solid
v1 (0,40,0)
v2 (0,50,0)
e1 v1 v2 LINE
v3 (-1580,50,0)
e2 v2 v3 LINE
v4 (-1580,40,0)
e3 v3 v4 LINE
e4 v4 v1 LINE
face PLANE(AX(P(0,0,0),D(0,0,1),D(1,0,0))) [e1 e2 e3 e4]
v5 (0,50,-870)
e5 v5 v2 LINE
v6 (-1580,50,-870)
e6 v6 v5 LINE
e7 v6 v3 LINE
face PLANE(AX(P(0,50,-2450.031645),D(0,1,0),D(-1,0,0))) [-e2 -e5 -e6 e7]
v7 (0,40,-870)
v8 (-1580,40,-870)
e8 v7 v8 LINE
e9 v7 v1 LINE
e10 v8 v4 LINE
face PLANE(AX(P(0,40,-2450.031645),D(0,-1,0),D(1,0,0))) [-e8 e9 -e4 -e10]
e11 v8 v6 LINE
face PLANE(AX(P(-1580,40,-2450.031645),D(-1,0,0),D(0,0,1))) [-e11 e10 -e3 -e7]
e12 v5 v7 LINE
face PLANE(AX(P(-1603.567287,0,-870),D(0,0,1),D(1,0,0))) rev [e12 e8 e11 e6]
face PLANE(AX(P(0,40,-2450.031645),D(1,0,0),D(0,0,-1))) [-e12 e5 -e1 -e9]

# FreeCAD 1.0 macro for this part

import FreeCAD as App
import Part
import Sketcher

V = App.Vector
Q = App.Units.Quantity

doc = App.newDocument("Part")
body = doc.addObject("PartDesign::Body", "Body")

# Sketch on XY plane
sketch1 = body.newObject("Sketcher::SketchObject", "Sketch")
sketch1.AttachmentSupport = (doc.getObject("XY_Plane"), [""])
sketch1.MapMode = "FlatFace"
sketch1.addGeometry(Part.LineSegment(V(-1580, 50, 0), V(-1580, 40, 0)), False)
sketch1.addGeometry(Part.LineSegment(V(-1580, 40, 0), V(0, 40, 0)), False)
sketch1.addGeometry(Part.LineSegment(V(0, 40, 0), V(0, 50, 0)), False)
sketch1.addGeometry(Part.LineSegment(V(0, 50, 0), V(-1580, 50, 0)), False)
sketch1.addConstraint(Sketcher.Constraint("Coincident", 0, 2, 1, 1))
sketch1.addConstraint(Sketcher.Constraint("Coincident", 1, 2, 2, 1))
sketch1.addConstraint(Sketcher.Constraint("Coincident", 2, 2, 3, 1))
sketch1.addConstraint(Sketcher.Constraint("Coincident", 3, 2, 0, 1))
sketch1.addConstraint(Sketcher.Constraint("Vertical", 0))
sketch1.addConstraint(Sketcher.Constraint("Horizontal", 1))
sketch1.addConstraint(Sketcher.Constraint("Vertical", 2))
sketch1.addConstraint(Sketcher.Constraint("Horizontal", 3))
sketch1.addConstraint(Sketcher.Constraint("PointOnObject", 1, 2, -2))
sketch1.addConstraint(Sketcher.Constraint("DistanceX", 1, 1, 1, 2, Q("1580 mm")))
sketch1.addConstraint(Sketcher.Constraint("DistanceY", 0, 2, 0, 1, Q("10 mm")))
sketch1.addConstraint(Sketcher.Constraint("DistanceY", -1, 1, 0, 2, Q("40 mm")))
pad1 = body.newObject("PartDesign::Pad", "Pad")
pad1.Profile = sketch1
pad1.Length = 870
pad1.Reversed = True

doc.recompute()
